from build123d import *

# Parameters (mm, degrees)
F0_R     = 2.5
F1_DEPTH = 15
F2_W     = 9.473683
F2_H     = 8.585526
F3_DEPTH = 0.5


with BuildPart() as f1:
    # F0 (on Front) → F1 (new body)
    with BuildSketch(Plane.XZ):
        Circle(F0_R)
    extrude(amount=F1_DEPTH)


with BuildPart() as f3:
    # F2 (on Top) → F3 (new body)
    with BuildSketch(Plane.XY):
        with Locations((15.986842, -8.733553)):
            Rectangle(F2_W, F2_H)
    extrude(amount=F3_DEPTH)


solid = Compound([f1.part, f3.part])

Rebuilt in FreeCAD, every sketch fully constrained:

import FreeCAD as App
import Part
import Sketcher

V = App.Vector


def add_polygon(sketch, points):
    """Adds a closed chain of lines whose ends are joined by coincident constraints."""
    first, n = sketch.GeometryCount, len(points)
    for a, b in zip(points, points[1:] + points[:1]):
        sketch.addGeometry(Part.LineSegment(App.Vector(*a, 0), App.Vector(*b, 0)), False)
    for i in range(n):
        sketch.addConstraint(Sketcher.Constraint("Coincident", first + i, 2, first + (i + 1) % n, 1))

doc = App.newDocument("Part")
params = doc.addObject("Spreadsheet::Sheet", "Params")
for row, (alias, value) in enumerate([
    ("sketch1_diameter", "5 mm"),
    ("pad1_length", "15 mm"),
    ("pad2_length", "0.5 mm"),
], start=1):
    params.set(f"A{row}", alias)
    params.set(f"B{row}", "=" + value)
    params.setAlias(f"B{row}", alias)

body = doc.addObject("PartDesign::Body", "Body")

# Sketch on XZ plane
sketch1 = body.newObject("Sketcher::SketchObject", "Sketch")
sketch1.AttachmentSupport = (doc.getObject("XZ_Plane"), [""])
sketch1.MapMode = "FlatFace"
sketch1.addGeometry(Part.Circle(V(0, 0, 0), V(0, 0, 1), 2.5), False)
sketch1.addConstraint(Sketcher.Constraint("Coincident", 0, 3, -1, 1))
sketch1.addConstraint(Sketcher.Constraint("Diameter", 0, 5.0))
sketch1.setExpression("Constraints[1]", "Params.sketch1_diameter")
pad1 = body.newObject("PartDesign::Pad", "Pad")
pad1.Profile = sketch1
pad1.setExpression("Length", "Params.pad1_length")
body2 = doc.addObject("PartDesign::Body", "Body001")

# Sketch on XY plane
sketch2 = body2.newObject("Sketcher::SketchObject", "Sketch001")
sketch2.AttachmentSupport = (doc.getObject("XY_Plane001"), [""])
sketch2.MapMode = "FlatFace"
add_polygon(sketch2, [(11, -4), (11, -13), (21, -13), (21, -4)])  # lines 0-3
sketch2.addConstraint(Sketcher.Constraint("Vertical", 0))
sketch2.addConstraint(Sketcher.Constraint("Horizontal", 1))
sketch2.addConstraint(Sketcher.Constraint("Vertical", 2))
sketch2.addConstraint(Sketcher.Constraint("Horizontal", 3))
sketch2.addConstraint(Sketcher.Constraint("DistanceX", -1, 1, 0, 2, 11.250001))
sketch2.addConstraint(Sketcher.Constraint("DistanceX", 1, 1, 1, 2, 9.473683))
sketch2.addConstraint(Sketcher.Constraint("DistanceY", 0, 2, 0, 1, 8.585526))
sketch2.addConstraint(Sketcher.Constraint("DistanceY", 2, 2, -1, 1, 4.44079))
pad2 = body2.newObject("PartDesign::Pad", "Pad001")
pad2.Profile = sketch2
pad2.setExpression("Length", "Params.pad2_length")

doc.recompute()
